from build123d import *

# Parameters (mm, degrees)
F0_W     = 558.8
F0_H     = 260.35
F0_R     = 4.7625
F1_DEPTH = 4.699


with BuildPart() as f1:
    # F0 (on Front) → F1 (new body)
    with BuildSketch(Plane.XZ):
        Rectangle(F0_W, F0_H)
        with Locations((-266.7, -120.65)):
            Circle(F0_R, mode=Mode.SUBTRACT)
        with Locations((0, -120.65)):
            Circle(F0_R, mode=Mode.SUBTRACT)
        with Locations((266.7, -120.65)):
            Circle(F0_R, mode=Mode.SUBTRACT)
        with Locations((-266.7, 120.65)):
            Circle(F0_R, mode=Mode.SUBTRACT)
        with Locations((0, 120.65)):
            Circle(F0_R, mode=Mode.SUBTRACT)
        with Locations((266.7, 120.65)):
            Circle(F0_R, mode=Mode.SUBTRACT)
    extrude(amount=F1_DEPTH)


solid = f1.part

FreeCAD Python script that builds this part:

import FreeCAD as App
import Part
import Sketcher
Q = App.Units.Quantity

doc = App.newDocument("Part")
body = doc.addObject("PartDesign::Body", "Body")

# Sketch on XZ plane
sketch1 = doc.addObject("Sketcher::SketchObject", "Sketch")
body.addObject(sketch1)
sketch1.AttachmentSupport = (doc.XZ_Plane, [""])
sketch1.MapMode = "FlatFace"
sketch1.addGeometry(Part.LineSegment(App.Vector(-279.4, 130.2, 0), App.Vector(-279.4, -130.2, 0)), False)
sketch1.addGeometry(Part.LineSegment(App.Vector(-279.4, -130.2, 0), App.Vector(279.4, -130.2, 0)), False)
sketch1.addGeometry(Part.LineSegment(App.Vector(279.4, -130.2, 0), App.Vector(279.4, 130.2, 0)), False)
sketch1.addGeometry(Part.LineSegment(App.Vector(279.4, 130.2, 0), App.Vector(-279.4, 130.2, 0)), False)
sketch1.addGeometry(Part.Circle(App.Vector(-266.7, -120.7, 0), App.Vector(0, 0, 1), 4.8), False)
sketch1.addGeometry(Part.Circle(App.Vector(0, -120.7, 0), App.Vector(0, 0, 1), 4.8), False)
sketch1.addGeometry(Part.Circle(App.Vector(266.7, -120.7, 0), App.Vector(0, 0, 1), 4.8), False)
sketch1.addGeometry(Part.Circle(App.Vector(-266.7, 120.7, 0), App.Vector(0, 0, 1), 4.8), False)
sketch1.addGeometry(Part.Circle(App.Vector(0, 120.7, 0), App.Vector(0, 0, 1), 4.8), False)
sketch1.addGeometry(Part.Circle(App.Vector(266.7, 120.7, 0), App.Vector(0, 0, 1), 4.8), False)
sketch1.addConstraint(Sketcher.Constraint("Coincident", 0, 2, 1, 1))
sketch1.addConstraint(Sketcher.Constraint("Coincident", 1, 2, 2, 1))
sketch1.addConstraint(Sketcher.Constraint("Coincident", 2, 2, 3, 1))
sketch1.addConstraint(Sketcher.Constraint("Coincident", 3, 2, 0, 1))
sketch1.addConstraint(Sketcher.Constraint("Vertical", 0))
sketch1.addConstraint(Sketcher.Constraint("Horizontal", 1))
sketch1.addConstraint(Sketcher.Constraint("Vertical", 2))
sketch1.addConstraint(Sketcher.Constraint("Horizontal", 3))
sketch1.addConstraint(Sketcher.Constraint("Equal", 4, 5))
sketch1.addConstraint(Sketcher.Constraint("Equal", 5, 6))
sketch1.addConstraint(Sketcher.Constraint("Equal", 6, 7))
sketch1.addConstraint(Sketcher.Constraint("Equal", 7, 8))
sketch1.addConstraint(Sketcher.Constraint("Equal", 8, 9))
sketch1.addConstraint(Sketcher.Constraint("Symmetric", 6, 3, 7, 3, -1, 1))
sketch1.addConstraint(Sketcher.Constraint("Symmetric", 5, 3, 8, 3, -1, 1))
sketch1.addConstraint(Sketcher.Constraint("Symmetric", 4, 3, 9, 3, -1, 1))
sketch1.addConstraint(Sketcher.Constraint("Symmetric", 0, 2, 2, 2, -1, 1))
sketch1.addConstraint(Sketcher.Constraint("Symmetric", 4, 3, 6, 3, -2))
sketch1.addConstraint(Sketcher.Constraint("PointOnObject", 5, 3, -2))
sketch1.addConstraint(Sketcher.Constraint("Horizontal", 4, 3, 5, 3))
sketch1.addConstraint(Sketcher.Constraint("DistanceX", 1, 1, 1, 2, Q("22 in")))
sketch1.addConstraint(Sketcher.Constraint("Diameter", 4, Q("0.375 in")))
sketch1.addConstraint(Sketcher.Constraint("DistanceX", 4, 3, 6, 3, Q("21 in")))
sketch1.addConstraint(Sketcher.Constraint("DistanceY", 0, 2, 0, 1, Q("10.25 in")))
sketch1.addConstraint(Sketcher.Constraint("DistanceY", 4, 3, 7, 3, Q("9.5 in")))
pad1 = doc.addObject("PartDesign::Pad", "Pad")
body.addObject(pad1)
pad1.Profile = sketch1
pad1.Length = Q("0.185 in")

doc.recompute()
